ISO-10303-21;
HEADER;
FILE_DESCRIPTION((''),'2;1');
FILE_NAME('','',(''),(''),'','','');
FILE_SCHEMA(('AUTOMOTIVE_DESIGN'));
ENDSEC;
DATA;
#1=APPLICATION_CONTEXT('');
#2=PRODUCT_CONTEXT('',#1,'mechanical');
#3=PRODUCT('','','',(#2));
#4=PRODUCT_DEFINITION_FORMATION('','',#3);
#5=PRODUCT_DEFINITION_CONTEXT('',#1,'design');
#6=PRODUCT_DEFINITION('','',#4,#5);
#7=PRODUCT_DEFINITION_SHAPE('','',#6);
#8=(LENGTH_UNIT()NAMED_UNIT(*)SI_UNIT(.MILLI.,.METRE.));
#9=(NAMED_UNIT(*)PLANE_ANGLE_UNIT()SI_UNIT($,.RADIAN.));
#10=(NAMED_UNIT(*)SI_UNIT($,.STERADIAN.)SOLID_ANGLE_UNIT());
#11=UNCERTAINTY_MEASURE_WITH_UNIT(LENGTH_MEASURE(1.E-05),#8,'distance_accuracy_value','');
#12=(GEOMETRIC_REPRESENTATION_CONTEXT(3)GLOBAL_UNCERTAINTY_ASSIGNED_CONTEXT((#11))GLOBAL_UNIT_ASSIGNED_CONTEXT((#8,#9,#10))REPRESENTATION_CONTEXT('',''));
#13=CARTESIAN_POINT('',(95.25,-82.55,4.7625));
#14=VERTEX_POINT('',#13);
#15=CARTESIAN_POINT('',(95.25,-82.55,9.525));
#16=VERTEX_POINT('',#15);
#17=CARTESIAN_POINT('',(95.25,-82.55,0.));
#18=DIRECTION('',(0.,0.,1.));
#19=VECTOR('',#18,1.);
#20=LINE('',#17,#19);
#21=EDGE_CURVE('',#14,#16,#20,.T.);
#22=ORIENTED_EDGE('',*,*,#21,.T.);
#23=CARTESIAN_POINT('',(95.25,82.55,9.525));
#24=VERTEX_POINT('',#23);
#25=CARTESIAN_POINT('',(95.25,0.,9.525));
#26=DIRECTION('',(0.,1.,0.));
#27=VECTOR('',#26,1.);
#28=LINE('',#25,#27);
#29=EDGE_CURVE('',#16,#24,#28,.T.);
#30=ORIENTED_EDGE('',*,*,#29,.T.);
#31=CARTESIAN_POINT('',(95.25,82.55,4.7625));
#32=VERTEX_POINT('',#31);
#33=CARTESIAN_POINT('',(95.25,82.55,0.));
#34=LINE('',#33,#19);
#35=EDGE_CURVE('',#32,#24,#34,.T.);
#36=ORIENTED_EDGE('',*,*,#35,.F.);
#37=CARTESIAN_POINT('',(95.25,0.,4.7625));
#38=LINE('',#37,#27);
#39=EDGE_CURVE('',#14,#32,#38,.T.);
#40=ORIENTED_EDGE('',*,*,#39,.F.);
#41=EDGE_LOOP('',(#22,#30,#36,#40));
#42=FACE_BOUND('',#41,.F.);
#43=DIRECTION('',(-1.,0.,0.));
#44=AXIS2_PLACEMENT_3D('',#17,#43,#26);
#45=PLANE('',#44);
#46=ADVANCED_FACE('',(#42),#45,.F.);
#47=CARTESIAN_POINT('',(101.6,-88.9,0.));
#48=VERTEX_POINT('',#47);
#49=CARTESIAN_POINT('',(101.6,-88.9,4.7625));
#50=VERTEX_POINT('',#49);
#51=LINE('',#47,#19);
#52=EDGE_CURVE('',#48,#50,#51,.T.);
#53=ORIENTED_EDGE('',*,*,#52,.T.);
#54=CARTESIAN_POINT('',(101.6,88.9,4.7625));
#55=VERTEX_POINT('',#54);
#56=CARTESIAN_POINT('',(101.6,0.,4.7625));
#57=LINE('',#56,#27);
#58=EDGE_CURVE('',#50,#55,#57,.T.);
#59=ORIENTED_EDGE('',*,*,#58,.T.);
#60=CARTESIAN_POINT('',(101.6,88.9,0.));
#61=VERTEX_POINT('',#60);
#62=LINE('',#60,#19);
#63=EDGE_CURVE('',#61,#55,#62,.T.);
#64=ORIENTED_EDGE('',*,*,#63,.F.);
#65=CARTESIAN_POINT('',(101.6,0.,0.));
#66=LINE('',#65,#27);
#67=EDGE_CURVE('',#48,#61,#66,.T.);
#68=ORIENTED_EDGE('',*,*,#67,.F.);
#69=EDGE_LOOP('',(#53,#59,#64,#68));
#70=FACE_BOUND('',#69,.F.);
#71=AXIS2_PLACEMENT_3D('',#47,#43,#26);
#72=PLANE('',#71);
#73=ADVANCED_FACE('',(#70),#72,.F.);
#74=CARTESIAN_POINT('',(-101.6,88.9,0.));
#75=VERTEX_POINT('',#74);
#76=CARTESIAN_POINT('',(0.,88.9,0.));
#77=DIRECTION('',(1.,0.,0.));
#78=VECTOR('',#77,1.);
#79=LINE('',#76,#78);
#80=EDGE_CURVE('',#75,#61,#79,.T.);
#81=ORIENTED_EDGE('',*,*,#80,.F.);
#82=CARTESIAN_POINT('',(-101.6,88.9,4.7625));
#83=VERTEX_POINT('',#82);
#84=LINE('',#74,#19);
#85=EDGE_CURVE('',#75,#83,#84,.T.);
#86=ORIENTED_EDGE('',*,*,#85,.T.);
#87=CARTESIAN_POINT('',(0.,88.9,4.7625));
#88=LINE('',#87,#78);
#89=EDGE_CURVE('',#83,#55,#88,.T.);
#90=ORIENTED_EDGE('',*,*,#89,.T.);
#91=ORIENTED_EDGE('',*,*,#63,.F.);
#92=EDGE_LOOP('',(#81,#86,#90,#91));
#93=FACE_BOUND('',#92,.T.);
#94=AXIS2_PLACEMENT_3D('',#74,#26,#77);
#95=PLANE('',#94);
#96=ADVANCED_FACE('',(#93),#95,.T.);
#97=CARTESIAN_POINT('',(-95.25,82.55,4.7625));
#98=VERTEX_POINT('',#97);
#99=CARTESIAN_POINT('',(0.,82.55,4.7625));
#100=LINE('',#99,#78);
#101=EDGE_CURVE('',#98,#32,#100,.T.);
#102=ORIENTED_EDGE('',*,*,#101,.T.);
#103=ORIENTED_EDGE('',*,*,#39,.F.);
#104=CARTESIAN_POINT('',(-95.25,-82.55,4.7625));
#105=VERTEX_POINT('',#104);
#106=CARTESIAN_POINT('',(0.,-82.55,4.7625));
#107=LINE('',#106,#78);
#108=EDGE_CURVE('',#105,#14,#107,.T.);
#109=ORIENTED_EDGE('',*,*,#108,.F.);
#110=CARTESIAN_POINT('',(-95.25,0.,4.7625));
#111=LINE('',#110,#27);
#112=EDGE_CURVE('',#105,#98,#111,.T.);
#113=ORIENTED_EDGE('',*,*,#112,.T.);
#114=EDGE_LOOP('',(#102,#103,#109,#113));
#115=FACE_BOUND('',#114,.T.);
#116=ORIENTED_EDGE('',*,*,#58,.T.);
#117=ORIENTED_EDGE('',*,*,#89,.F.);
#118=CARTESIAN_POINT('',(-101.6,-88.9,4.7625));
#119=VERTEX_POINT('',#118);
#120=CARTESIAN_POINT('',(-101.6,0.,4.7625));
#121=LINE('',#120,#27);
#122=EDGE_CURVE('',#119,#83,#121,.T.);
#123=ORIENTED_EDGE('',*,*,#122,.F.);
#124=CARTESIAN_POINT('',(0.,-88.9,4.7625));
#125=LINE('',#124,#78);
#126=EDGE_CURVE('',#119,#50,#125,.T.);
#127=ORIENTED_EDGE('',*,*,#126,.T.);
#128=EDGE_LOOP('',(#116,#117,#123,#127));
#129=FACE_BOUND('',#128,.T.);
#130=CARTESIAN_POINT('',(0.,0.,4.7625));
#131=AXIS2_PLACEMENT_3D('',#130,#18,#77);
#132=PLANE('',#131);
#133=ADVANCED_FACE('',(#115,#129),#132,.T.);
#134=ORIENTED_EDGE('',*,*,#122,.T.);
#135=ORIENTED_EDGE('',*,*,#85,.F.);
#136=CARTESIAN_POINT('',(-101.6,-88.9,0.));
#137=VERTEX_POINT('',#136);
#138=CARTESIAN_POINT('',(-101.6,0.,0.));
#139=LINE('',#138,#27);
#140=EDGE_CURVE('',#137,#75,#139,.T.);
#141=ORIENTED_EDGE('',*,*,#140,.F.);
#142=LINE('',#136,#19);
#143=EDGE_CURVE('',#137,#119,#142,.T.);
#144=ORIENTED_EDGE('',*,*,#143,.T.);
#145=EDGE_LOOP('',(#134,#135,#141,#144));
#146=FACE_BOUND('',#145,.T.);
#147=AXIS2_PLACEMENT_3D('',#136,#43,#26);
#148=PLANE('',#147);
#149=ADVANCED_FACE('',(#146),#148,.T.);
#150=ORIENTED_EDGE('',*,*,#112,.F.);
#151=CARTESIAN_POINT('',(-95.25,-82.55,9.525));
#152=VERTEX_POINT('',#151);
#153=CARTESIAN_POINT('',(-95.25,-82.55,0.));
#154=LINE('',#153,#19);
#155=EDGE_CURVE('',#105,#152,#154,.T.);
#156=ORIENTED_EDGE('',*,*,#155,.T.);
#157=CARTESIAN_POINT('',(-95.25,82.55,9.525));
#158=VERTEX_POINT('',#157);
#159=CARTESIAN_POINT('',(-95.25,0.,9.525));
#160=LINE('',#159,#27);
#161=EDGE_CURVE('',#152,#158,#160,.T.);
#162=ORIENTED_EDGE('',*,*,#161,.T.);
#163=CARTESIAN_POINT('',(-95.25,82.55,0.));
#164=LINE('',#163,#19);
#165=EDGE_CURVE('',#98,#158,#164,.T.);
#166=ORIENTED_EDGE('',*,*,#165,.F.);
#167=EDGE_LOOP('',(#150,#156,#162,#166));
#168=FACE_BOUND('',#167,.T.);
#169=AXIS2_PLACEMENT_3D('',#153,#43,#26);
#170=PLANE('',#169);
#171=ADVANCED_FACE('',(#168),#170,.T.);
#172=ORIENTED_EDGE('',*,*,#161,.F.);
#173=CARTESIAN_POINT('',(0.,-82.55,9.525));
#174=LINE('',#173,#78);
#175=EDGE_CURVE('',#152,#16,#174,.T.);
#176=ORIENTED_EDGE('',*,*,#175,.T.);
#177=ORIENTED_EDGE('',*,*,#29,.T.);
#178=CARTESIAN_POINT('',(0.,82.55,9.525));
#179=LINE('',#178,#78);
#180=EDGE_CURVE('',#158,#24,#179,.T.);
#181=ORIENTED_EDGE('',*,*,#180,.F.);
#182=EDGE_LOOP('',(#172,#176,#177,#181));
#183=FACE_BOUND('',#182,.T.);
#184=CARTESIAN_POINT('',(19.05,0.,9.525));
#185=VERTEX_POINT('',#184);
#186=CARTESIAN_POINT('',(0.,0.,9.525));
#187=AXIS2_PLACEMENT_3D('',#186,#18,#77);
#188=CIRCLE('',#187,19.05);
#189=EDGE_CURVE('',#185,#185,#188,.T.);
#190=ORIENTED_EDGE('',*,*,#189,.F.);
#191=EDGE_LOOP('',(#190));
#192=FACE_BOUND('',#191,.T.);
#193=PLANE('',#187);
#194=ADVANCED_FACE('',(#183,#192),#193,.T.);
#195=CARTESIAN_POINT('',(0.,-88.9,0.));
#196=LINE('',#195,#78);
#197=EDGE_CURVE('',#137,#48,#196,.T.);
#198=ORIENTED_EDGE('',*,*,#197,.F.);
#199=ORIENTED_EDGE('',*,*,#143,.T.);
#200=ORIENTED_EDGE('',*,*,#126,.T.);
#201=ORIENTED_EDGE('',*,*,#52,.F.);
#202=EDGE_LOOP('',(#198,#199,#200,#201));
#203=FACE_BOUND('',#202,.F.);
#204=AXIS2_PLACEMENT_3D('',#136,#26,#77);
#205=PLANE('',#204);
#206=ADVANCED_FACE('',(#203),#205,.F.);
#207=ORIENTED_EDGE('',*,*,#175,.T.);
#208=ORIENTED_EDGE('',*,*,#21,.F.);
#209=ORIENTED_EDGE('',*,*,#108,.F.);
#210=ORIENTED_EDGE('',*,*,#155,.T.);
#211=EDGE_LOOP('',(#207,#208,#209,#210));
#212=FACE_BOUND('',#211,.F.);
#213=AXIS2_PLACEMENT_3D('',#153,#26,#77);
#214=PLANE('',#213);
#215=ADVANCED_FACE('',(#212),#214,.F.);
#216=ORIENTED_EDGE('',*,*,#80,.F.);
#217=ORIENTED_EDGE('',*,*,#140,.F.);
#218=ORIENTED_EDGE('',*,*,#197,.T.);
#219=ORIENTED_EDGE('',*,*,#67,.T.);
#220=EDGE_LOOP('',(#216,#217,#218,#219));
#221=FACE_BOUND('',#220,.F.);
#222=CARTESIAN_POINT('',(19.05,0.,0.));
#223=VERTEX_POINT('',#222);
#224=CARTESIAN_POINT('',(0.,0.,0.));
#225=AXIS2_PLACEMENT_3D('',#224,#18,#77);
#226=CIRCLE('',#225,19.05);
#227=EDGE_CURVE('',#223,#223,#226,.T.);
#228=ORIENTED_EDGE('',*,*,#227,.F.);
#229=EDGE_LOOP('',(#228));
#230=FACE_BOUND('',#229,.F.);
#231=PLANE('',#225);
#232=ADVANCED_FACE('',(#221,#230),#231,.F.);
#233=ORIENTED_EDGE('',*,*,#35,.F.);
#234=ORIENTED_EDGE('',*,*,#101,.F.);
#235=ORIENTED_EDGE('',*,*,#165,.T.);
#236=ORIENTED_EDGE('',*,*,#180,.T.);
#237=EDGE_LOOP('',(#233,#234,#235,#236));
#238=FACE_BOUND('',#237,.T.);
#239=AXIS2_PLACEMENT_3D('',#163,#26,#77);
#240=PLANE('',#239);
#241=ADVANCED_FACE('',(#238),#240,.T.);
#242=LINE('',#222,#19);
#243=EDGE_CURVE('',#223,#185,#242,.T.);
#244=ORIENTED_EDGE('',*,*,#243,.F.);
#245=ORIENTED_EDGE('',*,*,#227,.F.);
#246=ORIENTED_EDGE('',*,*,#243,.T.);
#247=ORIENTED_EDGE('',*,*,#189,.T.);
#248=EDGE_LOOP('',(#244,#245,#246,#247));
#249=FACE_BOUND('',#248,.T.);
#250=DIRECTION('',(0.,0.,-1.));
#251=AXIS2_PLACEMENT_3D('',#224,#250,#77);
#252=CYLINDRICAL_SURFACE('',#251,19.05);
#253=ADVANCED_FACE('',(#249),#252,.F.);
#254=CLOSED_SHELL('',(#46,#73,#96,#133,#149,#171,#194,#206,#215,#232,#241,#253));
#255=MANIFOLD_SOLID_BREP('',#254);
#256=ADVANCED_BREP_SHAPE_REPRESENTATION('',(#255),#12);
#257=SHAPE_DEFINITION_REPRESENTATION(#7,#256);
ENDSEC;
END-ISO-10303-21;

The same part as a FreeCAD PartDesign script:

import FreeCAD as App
import Part
import Sketcher
from FreeCAD import Vector
Q = App.Units.Quantity


def add_polygon(sketch, points):
    """Adds a closed chain of lines whose ends are joined by coincident constraints."""
    first, n = sketch.GeometryCount, len(points)
    for a, b in zip(points, points[1:] + points[:1]):
        sketch.addGeometry(Part.LineSegment(App.Vector(*a, 0), App.Vector(*b, 0)), False)
    for i in range(n):
        sketch.addConstraint(Sketcher.Constraint("Coincident", first + i, 2, first + (i + 1) % n, 1))

doc = App.newDocument("Part")
body = doc.addObject("PartDesign::Body", "Body")

sketch1 = body.newObject("Sketcher::SketchObject", "Sketch")
sketch1.AttachmentSupport = (doc.getObject("XY_Plane"), [""])
sketch1.MapMode = "FlatFace"
add_polygon(sketch1, [(-95, 83), (-95, -83), (95, -83), (95, 83)])
sketch1.addGeometry(Part.Circle(Vector(0, 0, 0), Vector(0, 0, 1), 19), False)
sketch1.addConstraint([
    Sketcher.Constraint("Vertical", 0),
    Sketcher.Constraint("Horizontal", 1),
    Sketcher.Constraint("Vertical", 2),
    Sketcher.Constraint("Horizontal", 3),
    Sketcher.Constraint("Coincident", 4, 3, -1, 1),
    Sketcher.Constraint("Symmetric", 0, 2, 2, 2, -1, 1),
    Sketcher.Constraint("Diameter", 4, Q("1.5 in")),
    Sketcher.Constraint("DistanceX", 1, 1, 1, 2, Q("7.5 in")),
    Sketcher.Constraint("DistanceY", 0, 2, 0, 1, Q("6.5 in")),
])
pad1 = body.newObject("PartDesign::Pad", "Pad")
pad1.Profile = sketch1
pad1.Length = Q("0.375 in")

sketch2 = body.newObject("Sketcher::SketchObject", "Sketch001")
sketch2.AttachmentSupport = (doc.getObject("XY_Plane"), [""])
sketch2.MapMode = "FlatFace"
add_polygon(sketch2, [(-102, 89), (-102, -89), (102, -89), (102, 89)])
add_polygon(sketch2, [(95, -83), (-95, -83), (-95, 83), (95, 83)])
sketch2.addConstraint([
    Sketcher.Constraint("Vertical", 0),
    Sketcher.Constraint("Horizontal", 1),
    Sketcher.Constraint("Vertical", 2),
    Sketcher.Constraint("Horizontal", 3),
    Sketcher.Constraint("Horizontal", 4),
    Sketcher.Constraint("Vertical", 5),
    Sketcher.Constraint("Horizontal", 6),
    Sketcher.Constraint("Vertical", 7),
    Sketcher.Constraint("Symmetric", 0, 2, 2, 2, -1, 1),
    Sketcher.Constraint("Symmetric", 4, 2, 6, 2, -1, 1),
    Sketcher.Constraint("DistanceX", 1, 1, 1, 2, Q("8 in")),
    Sketcher.Constraint("DistanceY", 0, 2, 0, 1, Q("7 in")),
    Sketcher.Constraint("DistanceX", 4, 2, 4, 1, Q("7.5 in")),
    Sketcher.Constraint("DistanceY", 5, 1, 5, 2, Q("6.5 in")),
])
pad2 = body.newObject("PartDesign::Pad", "Pad001")
pad2.Profile = sketch2
pad2.Length = Q("0.1875 in")

doc.recompute()
